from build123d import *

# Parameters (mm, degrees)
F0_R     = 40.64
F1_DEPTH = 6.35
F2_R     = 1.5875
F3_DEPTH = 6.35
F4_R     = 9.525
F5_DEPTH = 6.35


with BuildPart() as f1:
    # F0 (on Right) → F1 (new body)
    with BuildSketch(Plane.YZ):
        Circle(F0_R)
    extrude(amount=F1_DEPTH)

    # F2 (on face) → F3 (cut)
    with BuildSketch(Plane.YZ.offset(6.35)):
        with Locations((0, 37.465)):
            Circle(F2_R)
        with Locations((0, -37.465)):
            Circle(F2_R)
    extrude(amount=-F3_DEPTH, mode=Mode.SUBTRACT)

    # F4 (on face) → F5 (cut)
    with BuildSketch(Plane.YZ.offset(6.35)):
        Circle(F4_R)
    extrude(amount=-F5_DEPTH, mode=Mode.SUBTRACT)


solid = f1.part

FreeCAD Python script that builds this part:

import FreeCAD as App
import Part
import Sketcher
from FreeCAD import Vector
Q = App.Units.Quantity

doc = App.newDocument("Part")
body = doc.addObject("PartDesign::Body", "Body")

# Sketch on YZ plane
sketch1 = body.newObject("Sketcher::SketchObject", "Sketch")
sketch1.AttachmentSupport = (doc.getObject("YZ_Plane"), [""])
sketch1.MapMode = "FlatFace"
sketch1.addGeometry(Part.Circle(Vector(0, 0, 0), Vector(0, 0, 1), 41), False)
sketch1.addConstraint([
    Sketcher.Constraint("Coincident", 0, 3, -1, 1),
    Sketcher.Constraint("Diameter", 0, Q("3.2 in")),
])
pad1 = body.newObject("PartDesign::Pad", "Pad")
pad1.Profile = sketch1
pad1.Length = Q("0.25 in")

# Sketch on YZ plane
sketch2 = body.newObject("Sketcher::SketchObject", "Sketch001")
sketch2.AttachmentSupport = (doc.getObject("YZ_Plane"), [""])
sketch2.MapMode = "FlatFace"
sketch2.AttachmentOffset = App.Placement(Vector(0, 0, 0.25 * 25.4), App.Rotation())
sketch2.addGeometry([
    Part.Circle(Vector(0, 37.5, 0), Vector(0, 0, 1), 1.6),
    Part.Circle(Vector(0, -37.5, 0), Vector(0, 0, 1), 1.6),
], False)
sketch2.addConstraint([
    Sketcher.Constraint("Equal", 0, 1),
    Sketcher.Constraint("Symmetric", 0, 3, 1, 3, -1, 1),
    Sketcher.Constraint("PointOnObject", 0, 3, -2),
    Sketcher.Constraint("Diameter", 0, Q("0.125 in")),
    Sketcher.Constraint("DistanceY", 1, 3, 0, 3, Q("2.95 in")),
])
pocket1 = body.newObject("PartDesign::Pocket", "Pocket")
pocket1.Profile = sketch2
pocket1.Length = Q("0.25 in")

# Sketch on YZ plane
sketch3 = body.newObject("Sketcher::SketchObject", "Sketch002")
sketch3.AttachmentSupport = (doc.getObject("YZ_Plane"), [""])
sketch3.MapMode = "FlatFace"
sketch3.AttachmentOffset = App.Placement(Vector(0, 0, 0.25 * 25.4), App.Rotation())
sketch3.addGeometry(Part.Circle(Vector(0, 0, 0), Vector(0, 0, 1), 10), False)
sketch3.addConstraint([
    Sketcher.Constraint("Coincident", 0, 3, -1, 1),
    Sketcher.Constraint("Diameter", 0, Q("0.75 in")),
])
pocket2 = body.newObject("PartDesign::Pocket", "Pocket001")
pocket2.Profile = sketch3
pocket2.Length = Q("0.25 in")

doc.recompute()
